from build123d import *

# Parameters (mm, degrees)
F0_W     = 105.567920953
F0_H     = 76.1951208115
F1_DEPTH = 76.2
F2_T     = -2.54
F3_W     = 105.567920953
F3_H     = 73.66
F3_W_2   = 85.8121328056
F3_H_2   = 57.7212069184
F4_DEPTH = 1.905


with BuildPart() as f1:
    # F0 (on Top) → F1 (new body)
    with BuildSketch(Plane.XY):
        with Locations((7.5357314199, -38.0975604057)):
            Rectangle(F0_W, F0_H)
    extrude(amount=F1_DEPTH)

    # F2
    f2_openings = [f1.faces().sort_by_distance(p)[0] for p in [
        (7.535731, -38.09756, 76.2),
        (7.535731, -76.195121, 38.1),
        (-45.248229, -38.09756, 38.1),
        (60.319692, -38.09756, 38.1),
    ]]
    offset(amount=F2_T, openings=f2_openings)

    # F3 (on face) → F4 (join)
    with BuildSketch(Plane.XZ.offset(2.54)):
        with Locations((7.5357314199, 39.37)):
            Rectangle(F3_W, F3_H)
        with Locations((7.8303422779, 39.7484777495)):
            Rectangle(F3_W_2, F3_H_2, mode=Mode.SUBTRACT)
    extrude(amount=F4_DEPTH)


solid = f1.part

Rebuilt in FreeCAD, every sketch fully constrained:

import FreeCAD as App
import Part
import Sketcher

V = App.Vector
Q = App.Units.Quantity


def faces_at(feature, points):
    """Names of the faces that lie closest to the given points."""
    faces = feature.Shape.Faces
    near = lambda p: min(range(len(faces)), key=lambda i: faces[i].distToShape(Part.Vertex(*p))[0])
    return sorted({f"Face{near(p) + 1}" for p in points})

doc = App.newDocument("Part")
body = doc.addObject("PartDesign::Body", "Body")

sketch1 = body.newObject("Sketcher::SketchObject", "Sketch")
sketch1.AttachmentSupport = (doc.getObject("XY_Plane"), [""])
sketch1.MapMode = "FlatFace"
sketch1.addGeometry(Part.LineSegment(V(-45.248229, 0, 0), V(-45.248229, -76.195121, 0)), False)
sketch1.addGeometry(Part.LineSegment(V(-45.248229, -76.195121, 0), V(60.319692, -76.195121, 0)), False)
sketch1.addGeometry(Part.LineSegment(V(60.319692, -76.195121, 0), V(60.319692, 0, 0)), False)
sketch1.addGeometry(Part.LineSegment(V(60.319692, 0, 0), V(-45.248229, 0, 0)), False)
sketch1.addConstraint(Sketcher.Constraint("Coincident", 0, 2, 1, 1))
sketch1.addConstraint(Sketcher.Constraint("Coincident", 1, 2, 2, 1))
sketch1.addConstraint(Sketcher.Constraint("Coincident", 2, 2, 3, 1))
sketch1.addConstraint(Sketcher.Constraint("Coincident", 3, 2, 0, 1))
sketch1.addConstraint(Sketcher.Constraint("Vertical", 0))
sketch1.addConstraint(Sketcher.Constraint("Horizontal", 1))
sketch1.addConstraint(Sketcher.Constraint("Vertical", 2))
sketch1.addConstraint(Sketcher.Constraint("Horizontal", 3))
sketch1.addConstraint(Sketcher.Constraint("PointOnObject", 2, 2, -1))
sketch1.addConstraint(Sketcher.Constraint("DistanceX", 1, 1, 1, 2, Q("105.567921 mm")))
sketch1.addConstraint(Sketcher.Constraint("DistanceY", 0, 2, 0, 1, Q("76.195121 mm")))
sketch1.addConstraint(Sketcher.Constraint("DistanceX", 0, 2, -1, 1, Q("45.248229 mm")))
pad1 = body.newObject("PartDesign::Pad", "Pad")
pad1.Profile = sketch1
pad1.Length = Q("3 in")
doc.recompute()

thickness = body.newObject("PartDesign::Thickness", "Thickness")
thickness.Base = (pad1, faces_at(pad1, [
    (7.536, -38.098, 76.2),
    (7.536, -76.195, 38.1),
    (-45.248, -38.098, 38.1),
    (60.32, -38.098, 38.1),
]))
thickness.Value = Q("0.1 in")
thickness.Reversed = True
thickness.Join = "Arc"

sketch2 = body.newObject("Sketcher::SketchObject", "Sketch001")
sketch2.AttachmentSupport = (doc.getObject("XZ_Plane"), [""])
sketch2.MapMode = "FlatFace"
sketch2.AttachmentOffset = App.Placement(V(0, 0, 0.1 * 25.4), App.Rotation())
sketch2.addGeometry(Part.LineSegment(V(-45.248229, 76.2, 0), V(-45.248229, 2.54, 0)), False)
sketch2.addGeometry(Part.LineSegment(V(-45.248229, 2.54, 0), V(60.319692, 2.54, 0)), False)
sketch2.addGeometry(Part.LineSegment(V(60.319692, 2.54, 0), V(60.319692, 76.2, 0)), False)
sketch2.addGeometry(Part.LineSegment(V(60.319692, 76.2, 0), V(-45.248229, 76.2, 0)), False)
sketch2.addGeometry(Part.LineSegment(V(50.736409, 10.887874, 0), V(-35.075724, 10.887874, 0)), False)
sketch2.addGeometry(Part.LineSegment(V(-35.075724, 10.887874, 0), V(-35.075724, 68.609081, 0)), False)
sketch2.addGeometry(Part.LineSegment(V(-35.075724, 68.609081, 0), V(50.736409, 68.609081, 0)), False)
sketch2.addGeometry(Part.LineSegment(V(50.736409, 68.609081, 0), V(50.736409, 10.887874, 0)), False)
sketch2.addConstraint(Sketcher.Constraint("Coincident", 0, 2, 1, 1))
sketch2.addConstraint(Sketcher.Constraint("Coincident", 1, 2, 2, 1))
sketch2.addConstraint(Sketcher.Constraint("Coincident", 2, 2, 3, 1))
sketch2.addConstraint(Sketcher.Constraint("Coincident", 3, 2, 0, 1))
sketch2.addConstraint(Sketcher.Constraint("Coincident", 4, 2, 5, 1))
sketch2.addConstraint(Sketcher.Constraint("Coincident", 5, 2, 6, 1))
sketch2.addConstraint(Sketcher.Constraint("Coincident", 6, 2, 7, 1))
sketch2.addConstraint(Sketcher.Constraint("Coincident", 7, 2, 4, 1))
sketch2.addConstraint(Sketcher.Constraint("Vertical", 0))
sketch2.addConstraint(Sketcher.Constraint("Horizontal", 1))
sketch2.addConstraint(Sketcher.Constraint("Vertical", 2))
sketch2.addConstraint(Sketcher.Constraint("Horizontal", 3))
sketch2.addConstraint(Sketcher.Constraint("Horizontal", 4))
sketch2.addConstraint(Sketcher.Constraint("Vertical", 5))
sketch2.addConstraint(Sketcher.Constraint("Horizontal", 6))
sketch2.addConstraint(Sketcher.Constraint("Vertical", 7))
sketch2.addConstraint(Sketcher.Constraint("DistanceY", 0, 2, 0, 1, Q("2.9 in")))
sketch2.addConstraint(Sketcher.Constraint("DistanceY", -1, 1, 2, 2, Q("3 in")))
sketch2.addConstraint(Sketcher.Constraint("DistanceX", 1, 1, 1, 2, Q("105.567921 mm")))
sketch2.addConstraint(Sketcher.Constraint("DistanceX", 4, 2, 4, 1, Q("85.812133 mm")))
sketch2.addConstraint(Sketcher.Constraint("DistanceY", 5, 1, 5, 2, Q("57.721207 mm")))
sketch2.addConstraint(Sketcher.Constraint("DistanceX", 0, 2, -1, 1, Q("45.248229 mm")))
sketch2.addConstraint(Sketcher.Constraint("DistanceY", -1, 1, 5, 2, Q("68.609081 mm")))
sketch2.addConstraint(Sketcher.Constraint("DistanceX", -1, 1, 6, 2, Q("50.736409 mm")))
pad2 = body.newObject("PartDesign::Pad", "Pad001")
pad2.Profile = sketch2
pad2.Length = Q("0.075 in")

doc.recompute()
